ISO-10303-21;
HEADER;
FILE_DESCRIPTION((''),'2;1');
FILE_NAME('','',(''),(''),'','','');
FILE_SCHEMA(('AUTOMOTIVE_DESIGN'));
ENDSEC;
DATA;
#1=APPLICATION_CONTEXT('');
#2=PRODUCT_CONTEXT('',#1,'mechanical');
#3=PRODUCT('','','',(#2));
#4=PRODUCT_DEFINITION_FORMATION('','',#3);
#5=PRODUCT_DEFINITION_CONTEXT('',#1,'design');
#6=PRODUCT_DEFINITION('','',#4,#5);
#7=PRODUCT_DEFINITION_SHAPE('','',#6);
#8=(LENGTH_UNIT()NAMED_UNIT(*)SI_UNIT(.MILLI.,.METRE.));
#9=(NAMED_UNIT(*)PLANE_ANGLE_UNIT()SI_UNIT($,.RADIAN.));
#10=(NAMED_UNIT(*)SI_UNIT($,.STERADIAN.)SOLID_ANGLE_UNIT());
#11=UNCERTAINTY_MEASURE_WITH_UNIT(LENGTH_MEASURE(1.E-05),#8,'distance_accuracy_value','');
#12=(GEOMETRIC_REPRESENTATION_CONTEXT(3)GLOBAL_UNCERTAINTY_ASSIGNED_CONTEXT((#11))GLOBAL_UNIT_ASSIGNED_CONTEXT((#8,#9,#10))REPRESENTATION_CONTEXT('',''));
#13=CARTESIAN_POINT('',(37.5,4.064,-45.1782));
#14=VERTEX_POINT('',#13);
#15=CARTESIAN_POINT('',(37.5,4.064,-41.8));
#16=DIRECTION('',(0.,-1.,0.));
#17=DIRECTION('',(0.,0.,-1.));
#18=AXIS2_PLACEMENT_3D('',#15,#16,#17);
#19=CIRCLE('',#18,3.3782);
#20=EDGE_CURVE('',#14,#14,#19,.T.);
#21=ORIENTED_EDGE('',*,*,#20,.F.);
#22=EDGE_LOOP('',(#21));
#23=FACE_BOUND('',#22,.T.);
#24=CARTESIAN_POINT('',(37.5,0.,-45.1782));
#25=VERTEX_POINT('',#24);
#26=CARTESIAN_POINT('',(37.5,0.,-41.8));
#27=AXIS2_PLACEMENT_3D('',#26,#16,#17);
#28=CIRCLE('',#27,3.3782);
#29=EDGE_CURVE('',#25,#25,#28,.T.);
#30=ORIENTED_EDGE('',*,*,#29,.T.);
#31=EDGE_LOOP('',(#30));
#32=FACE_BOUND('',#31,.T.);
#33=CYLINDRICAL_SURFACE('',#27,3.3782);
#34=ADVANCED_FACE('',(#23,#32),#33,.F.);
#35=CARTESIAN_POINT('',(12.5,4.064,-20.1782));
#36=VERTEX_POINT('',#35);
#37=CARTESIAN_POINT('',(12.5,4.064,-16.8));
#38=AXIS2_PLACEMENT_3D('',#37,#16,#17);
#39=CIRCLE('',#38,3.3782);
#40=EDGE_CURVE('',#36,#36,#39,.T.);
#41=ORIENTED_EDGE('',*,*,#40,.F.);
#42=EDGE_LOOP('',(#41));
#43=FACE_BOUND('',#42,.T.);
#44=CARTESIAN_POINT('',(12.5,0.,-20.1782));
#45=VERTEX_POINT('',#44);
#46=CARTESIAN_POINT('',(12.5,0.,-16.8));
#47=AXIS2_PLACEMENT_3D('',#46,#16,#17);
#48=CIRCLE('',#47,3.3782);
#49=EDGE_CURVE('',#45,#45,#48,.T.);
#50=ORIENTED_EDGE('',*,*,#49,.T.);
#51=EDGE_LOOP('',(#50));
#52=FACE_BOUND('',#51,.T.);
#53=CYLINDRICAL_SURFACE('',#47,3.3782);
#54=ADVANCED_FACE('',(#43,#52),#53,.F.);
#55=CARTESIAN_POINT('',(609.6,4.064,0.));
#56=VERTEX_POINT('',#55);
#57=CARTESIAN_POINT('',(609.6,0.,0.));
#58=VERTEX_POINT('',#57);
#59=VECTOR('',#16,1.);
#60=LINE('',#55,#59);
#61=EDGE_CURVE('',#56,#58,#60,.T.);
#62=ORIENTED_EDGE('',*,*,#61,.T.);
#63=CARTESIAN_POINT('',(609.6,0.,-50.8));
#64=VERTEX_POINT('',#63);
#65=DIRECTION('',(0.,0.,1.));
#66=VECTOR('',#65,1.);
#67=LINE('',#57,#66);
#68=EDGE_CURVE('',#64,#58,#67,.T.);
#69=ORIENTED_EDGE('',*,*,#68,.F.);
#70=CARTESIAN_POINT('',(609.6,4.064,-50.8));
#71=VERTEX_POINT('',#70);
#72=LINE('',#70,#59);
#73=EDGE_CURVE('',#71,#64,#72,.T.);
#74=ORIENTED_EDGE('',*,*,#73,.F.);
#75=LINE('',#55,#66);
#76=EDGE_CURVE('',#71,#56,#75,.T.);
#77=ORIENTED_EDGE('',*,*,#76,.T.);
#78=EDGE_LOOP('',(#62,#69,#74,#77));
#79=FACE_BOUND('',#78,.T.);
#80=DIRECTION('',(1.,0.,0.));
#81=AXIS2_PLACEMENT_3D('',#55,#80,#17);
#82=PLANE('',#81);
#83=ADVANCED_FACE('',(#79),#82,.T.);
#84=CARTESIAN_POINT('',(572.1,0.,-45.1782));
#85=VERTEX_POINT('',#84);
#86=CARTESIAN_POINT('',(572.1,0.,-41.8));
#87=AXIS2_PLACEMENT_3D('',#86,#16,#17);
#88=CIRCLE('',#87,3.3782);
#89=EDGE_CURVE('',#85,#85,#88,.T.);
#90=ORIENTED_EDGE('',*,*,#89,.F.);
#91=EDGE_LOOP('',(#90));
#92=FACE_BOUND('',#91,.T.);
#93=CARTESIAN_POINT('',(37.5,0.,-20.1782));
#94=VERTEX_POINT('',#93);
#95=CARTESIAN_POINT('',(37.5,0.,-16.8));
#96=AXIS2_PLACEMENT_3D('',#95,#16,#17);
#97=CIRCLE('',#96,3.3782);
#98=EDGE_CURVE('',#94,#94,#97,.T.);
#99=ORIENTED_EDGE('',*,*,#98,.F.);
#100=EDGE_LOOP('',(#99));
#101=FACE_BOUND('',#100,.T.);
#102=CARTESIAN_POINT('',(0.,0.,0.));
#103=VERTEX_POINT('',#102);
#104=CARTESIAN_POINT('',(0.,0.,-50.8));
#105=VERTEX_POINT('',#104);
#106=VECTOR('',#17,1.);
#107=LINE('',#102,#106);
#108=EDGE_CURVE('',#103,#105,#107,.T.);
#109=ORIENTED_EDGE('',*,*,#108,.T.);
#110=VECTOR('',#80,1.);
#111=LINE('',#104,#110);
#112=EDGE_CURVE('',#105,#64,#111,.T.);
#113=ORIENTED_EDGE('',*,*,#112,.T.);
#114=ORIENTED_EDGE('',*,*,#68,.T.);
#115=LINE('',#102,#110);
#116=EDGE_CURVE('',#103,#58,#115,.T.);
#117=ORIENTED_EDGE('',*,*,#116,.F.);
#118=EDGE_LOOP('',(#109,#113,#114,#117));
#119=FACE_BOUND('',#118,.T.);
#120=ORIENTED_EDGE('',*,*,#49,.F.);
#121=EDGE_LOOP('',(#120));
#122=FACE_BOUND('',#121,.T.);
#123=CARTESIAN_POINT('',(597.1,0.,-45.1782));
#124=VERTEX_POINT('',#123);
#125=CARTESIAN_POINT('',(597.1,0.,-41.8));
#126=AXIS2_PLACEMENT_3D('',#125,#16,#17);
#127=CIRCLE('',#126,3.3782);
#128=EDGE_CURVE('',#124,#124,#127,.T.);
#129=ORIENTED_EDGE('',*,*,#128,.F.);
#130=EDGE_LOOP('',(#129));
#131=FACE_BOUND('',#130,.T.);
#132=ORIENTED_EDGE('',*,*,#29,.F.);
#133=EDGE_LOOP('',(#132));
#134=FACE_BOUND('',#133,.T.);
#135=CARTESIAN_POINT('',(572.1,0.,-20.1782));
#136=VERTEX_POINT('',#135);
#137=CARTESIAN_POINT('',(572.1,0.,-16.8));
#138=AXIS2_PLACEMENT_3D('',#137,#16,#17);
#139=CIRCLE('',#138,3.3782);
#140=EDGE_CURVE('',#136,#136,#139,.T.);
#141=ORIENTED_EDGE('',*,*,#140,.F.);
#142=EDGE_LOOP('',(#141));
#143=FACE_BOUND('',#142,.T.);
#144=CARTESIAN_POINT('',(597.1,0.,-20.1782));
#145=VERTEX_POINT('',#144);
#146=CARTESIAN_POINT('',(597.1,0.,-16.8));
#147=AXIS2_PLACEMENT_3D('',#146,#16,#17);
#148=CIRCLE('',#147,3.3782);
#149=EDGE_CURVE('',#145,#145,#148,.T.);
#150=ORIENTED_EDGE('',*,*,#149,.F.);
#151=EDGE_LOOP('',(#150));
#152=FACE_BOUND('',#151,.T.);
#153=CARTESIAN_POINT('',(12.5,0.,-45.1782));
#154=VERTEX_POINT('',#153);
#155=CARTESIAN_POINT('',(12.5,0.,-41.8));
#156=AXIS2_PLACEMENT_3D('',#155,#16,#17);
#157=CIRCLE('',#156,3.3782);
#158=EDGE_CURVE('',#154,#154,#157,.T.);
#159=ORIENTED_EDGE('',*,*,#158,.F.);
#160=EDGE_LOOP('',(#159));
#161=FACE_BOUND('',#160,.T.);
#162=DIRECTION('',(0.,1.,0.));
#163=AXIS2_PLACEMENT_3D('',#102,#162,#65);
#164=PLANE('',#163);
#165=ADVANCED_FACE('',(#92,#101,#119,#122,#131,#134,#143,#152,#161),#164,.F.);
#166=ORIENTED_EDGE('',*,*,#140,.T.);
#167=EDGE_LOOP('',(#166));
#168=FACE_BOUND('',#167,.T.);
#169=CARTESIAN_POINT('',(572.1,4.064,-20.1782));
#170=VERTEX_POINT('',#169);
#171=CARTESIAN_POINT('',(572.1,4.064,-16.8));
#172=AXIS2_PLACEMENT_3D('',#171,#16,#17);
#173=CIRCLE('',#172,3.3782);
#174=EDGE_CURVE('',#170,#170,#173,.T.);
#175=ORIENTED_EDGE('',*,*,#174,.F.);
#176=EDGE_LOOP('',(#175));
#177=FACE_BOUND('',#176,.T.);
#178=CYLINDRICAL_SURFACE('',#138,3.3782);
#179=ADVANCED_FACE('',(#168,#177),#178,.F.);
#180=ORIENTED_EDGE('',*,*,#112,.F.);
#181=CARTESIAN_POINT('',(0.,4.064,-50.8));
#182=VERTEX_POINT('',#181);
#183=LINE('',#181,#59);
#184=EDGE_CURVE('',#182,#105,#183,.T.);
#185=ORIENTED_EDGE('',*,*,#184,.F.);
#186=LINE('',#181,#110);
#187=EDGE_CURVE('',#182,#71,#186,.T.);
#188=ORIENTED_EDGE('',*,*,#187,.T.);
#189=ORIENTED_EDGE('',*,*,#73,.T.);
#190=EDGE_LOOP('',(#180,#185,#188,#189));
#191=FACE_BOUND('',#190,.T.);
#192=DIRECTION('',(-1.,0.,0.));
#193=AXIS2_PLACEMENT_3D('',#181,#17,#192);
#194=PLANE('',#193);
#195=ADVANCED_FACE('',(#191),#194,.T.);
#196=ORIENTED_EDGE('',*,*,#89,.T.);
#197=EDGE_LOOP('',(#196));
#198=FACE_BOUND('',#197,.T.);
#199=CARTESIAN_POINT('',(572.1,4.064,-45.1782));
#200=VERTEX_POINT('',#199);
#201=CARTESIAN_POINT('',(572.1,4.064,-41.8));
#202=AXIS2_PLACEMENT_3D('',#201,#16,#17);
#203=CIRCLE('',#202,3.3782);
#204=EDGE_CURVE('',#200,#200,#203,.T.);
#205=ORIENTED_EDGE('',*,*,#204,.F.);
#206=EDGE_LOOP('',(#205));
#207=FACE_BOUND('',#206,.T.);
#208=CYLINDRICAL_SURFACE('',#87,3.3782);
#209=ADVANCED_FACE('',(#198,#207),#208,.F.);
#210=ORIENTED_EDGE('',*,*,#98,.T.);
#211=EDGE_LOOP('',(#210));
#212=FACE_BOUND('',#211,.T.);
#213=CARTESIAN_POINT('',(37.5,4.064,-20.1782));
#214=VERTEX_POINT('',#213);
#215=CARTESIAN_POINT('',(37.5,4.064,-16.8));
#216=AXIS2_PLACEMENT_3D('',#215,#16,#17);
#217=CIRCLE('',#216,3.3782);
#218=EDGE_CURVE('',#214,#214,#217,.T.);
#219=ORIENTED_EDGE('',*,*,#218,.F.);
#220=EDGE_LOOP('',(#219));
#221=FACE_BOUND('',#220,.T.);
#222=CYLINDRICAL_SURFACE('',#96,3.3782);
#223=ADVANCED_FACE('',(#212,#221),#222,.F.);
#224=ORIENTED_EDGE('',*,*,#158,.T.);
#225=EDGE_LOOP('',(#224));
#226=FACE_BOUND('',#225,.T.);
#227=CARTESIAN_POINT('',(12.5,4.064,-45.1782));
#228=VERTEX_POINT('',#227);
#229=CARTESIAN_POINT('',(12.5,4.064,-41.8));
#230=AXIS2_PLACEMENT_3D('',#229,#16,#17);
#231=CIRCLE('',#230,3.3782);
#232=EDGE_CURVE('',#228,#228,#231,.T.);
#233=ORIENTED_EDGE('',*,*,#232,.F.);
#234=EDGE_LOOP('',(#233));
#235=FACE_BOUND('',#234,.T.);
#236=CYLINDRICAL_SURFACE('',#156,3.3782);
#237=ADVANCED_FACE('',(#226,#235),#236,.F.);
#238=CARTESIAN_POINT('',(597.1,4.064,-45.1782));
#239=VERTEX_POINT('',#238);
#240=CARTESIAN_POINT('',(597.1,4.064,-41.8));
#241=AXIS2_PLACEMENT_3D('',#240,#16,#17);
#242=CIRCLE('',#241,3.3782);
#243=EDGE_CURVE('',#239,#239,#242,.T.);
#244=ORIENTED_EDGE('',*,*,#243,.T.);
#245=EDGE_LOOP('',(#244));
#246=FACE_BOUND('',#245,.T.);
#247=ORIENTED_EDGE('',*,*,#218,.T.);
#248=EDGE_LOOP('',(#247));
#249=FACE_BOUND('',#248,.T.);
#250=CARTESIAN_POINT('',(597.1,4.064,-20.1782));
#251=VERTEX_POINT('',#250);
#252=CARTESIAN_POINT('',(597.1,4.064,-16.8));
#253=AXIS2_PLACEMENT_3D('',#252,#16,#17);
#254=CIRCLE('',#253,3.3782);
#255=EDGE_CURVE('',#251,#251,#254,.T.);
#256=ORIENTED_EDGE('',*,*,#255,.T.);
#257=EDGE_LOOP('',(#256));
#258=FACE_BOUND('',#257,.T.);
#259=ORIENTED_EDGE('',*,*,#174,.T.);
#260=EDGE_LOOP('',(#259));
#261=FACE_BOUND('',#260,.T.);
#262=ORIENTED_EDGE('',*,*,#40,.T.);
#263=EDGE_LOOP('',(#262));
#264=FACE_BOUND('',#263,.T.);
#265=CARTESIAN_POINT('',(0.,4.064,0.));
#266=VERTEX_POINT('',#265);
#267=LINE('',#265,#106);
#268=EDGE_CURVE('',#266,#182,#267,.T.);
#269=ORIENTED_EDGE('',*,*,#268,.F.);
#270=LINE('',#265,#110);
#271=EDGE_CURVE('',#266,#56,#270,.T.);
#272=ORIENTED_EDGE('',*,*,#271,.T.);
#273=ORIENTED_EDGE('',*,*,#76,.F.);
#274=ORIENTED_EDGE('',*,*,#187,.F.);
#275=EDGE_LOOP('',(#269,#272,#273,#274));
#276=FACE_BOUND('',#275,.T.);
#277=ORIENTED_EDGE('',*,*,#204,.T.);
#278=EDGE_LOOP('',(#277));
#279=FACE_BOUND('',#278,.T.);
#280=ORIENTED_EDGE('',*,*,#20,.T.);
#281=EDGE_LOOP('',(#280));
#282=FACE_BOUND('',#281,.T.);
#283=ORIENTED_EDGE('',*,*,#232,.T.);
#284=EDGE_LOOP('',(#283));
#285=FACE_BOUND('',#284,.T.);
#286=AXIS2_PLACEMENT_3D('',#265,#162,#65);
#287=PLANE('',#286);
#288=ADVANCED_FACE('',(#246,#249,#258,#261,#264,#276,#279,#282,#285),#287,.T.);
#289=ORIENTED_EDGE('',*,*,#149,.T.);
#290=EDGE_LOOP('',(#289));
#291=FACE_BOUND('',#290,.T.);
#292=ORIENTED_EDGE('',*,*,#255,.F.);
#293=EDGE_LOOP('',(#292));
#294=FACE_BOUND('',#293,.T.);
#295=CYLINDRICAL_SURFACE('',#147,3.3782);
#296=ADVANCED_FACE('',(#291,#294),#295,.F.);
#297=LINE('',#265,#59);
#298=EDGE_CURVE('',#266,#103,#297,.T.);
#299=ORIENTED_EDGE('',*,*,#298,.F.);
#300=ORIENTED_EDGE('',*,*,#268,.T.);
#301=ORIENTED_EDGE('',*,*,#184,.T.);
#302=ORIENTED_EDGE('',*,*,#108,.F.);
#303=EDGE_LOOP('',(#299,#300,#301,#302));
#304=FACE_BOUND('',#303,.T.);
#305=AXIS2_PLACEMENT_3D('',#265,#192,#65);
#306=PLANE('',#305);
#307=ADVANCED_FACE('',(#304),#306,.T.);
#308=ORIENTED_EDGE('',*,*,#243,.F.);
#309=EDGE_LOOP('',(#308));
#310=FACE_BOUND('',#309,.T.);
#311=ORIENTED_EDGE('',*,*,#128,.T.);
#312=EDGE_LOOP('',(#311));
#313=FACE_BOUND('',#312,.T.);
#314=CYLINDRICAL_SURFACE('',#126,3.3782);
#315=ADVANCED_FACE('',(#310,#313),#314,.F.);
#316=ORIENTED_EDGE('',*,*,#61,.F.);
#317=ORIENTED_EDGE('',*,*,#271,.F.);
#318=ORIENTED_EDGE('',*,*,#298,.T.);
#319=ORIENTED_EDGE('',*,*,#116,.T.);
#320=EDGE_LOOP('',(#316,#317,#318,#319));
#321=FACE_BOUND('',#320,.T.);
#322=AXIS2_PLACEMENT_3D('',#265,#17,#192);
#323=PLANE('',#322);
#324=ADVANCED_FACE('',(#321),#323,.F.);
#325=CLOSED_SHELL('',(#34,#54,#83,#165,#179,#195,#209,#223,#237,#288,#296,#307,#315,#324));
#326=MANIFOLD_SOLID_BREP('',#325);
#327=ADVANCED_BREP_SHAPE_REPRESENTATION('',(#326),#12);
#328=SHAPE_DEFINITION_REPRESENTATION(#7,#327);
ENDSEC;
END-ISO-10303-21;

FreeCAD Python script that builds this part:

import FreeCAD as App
import Part
import Sketcher

V = App.Vector
Q = App.Units.Quantity


def add_polygon(sketch, points):
    """Adds a closed chain of lines whose ends are joined by coincident constraints."""
    first, n = sketch.GeometryCount, len(points)
    for a, b in zip(points, points[1:] + points[:1]):
        sketch.addGeometry(Part.LineSegment(App.Vector(*a, 0), App.Vector(*b, 0)), False)
    for i in range(n):
        sketch.addConstraint(Sketcher.Constraint("Coincident", first + i, 2, first + (i + 1) % n, 1))

doc = App.newDocument("Part")
params = doc.addObject("Spreadsheet::Sheet", "Params")
for row, (alias, value) in enumerate([
    ("sketch1_width", "24 in"),
    ("sketch1_height", "2 in"),
    ("pad1_length", "0.16 in"),
    ("sketch2_diameter", "0.266 in"),
    ("hole_diameter", "0.266 in"),
], start=1):
    params.set(f"A{row}", alias)
    params.set(f"B{row}", "=" + value)
    params.setAlias(f"B{row}", alias)

body = doc.addObject("PartDesign::Body", "Body")

sketch1 = body.newObject("Sketcher::SketchObject", "Sketch")
sketch1.AttachmentSupport = (doc.getObject("XZ_Plane"), [""])
sketch1.MapMode = "FlatFace"
add_polygon(sketch1, [(0, -50.8), (0, 0), (609.6, 0), (609.6, -50.8)])
sketch1.addConstraint(Sketcher.Constraint("Vertical", 0))
sketch1.addConstraint(Sketcher.Constraint("Horizontal", 1))
sketch1.addConstraint(Sketcher.Constraint("Vertical", 2))
sketch1.addConstraint(Sketcher.Constraint("Horizontal", 3))
sketch1.addConstraint(Sketcher.Constraint("Coincident", 0, 2, -1, 1))
sketch1.addConstraint(Sketcher.Constraint("DistanceX", 1, 1, 1, 2, Q("24 in")))
sketch1.addConstraint(Sketcher.Constraint("DistanceY", 0, 1, 0, 2, Q("2 in")))
sketch1.setExpression("Constraints[9]", "Params.sketch1_width")
sketch1.setExpression("Constraints[10]", "Params.sketch1_height")
pad1 = body.newObject("PartDesign::Pad", "Pad")
pad1.Profile = sketch1
pad1.setExpression("Length", "Params.pad1_length")
pad1.Reversed = True

sketch2 = body.newObject("Sketcher::SketchObject", "Sketch001")
sketch2.AttachmentSupport = (doc.getObject("XZ_Plane"), [""])
sketch2.MapMode = "FlatFace"
sketch2.addGeometry(Part.Circle(V(12.5, -41.8, 0), V(0, 0, 1), 3.3782), False)
sketch2.addGeometry(Part.Circle(V(37.5, -41.8, 0), V(0, 0, 1), 3.3782), False)
sketch2.addGeometry(Part.Circle(V(37.5, -16.8, 0), V(0, 0, 1), 3.3782), False)
sketch2.addGeometry(Part.Circle(V(12.5, -16.8, 0), V(0, 0, 1), 3.3782), False)
sketch2.addGeometry(Part.Circle(V(572.1, -41.8, 0), V(0, 0, 1), 3.3782), False)
sketch2.addGeometry(Part.Circle(V(597.1, -41.8, 0), V(0, 0, 1), 3.3782), False)
sketch2.addGeometry(Part.Circle(V(597.1, -16.8, 0), V(0, 0, 1), 3.3782), False)
sketch2.addGeometry(Part.Circle(V(572.1, -16.8, 0), V(0, 0, 1), 3.3782), False)
sketch2.addConstraint(Sketcher.Constraint("Equal", 0, 1))
sketch2.addConstraint(Sketcher.Constraint("Equal", 1, 2))
sketch2.addConstraint(Sketcher.Constraint("Equal", 2, 3))
sketch2.addConstraint(Sketcher.Constraint("Equal", 3, 4))
sketch2.addConstraint(Sketcher.Constraint("Equal", 4, 5))
sketch2.addConstraint(Sketcher.Constraint("Equal", 5, 6))
sketch2.addConstraint(Sketcher.Constraint("Equal", 6, 7))
sketch2.addConstraint(Sketcher.Constraint("Horizontal", 0, 3, 1, 3))
sketch2.addConstraint(Sketcher.Constraint("Horizontal", 2, 3, 3, 3))
sketch2.addConstraint(Sketcher.Constraint("Horizontal", 1, 3, 4, 3))
sketch2.addConstraint(Sketcher.Constraint("Horizontal", 4, 3, 5, 3))
sketch2.addConstraint(Sketcher.Constraint("Horizontal", 3, 3, 6, 3))
sketch2.addConstraint(Sketcher.Constraint("Horizontal", 6, 3, 7, 3))
sketch2.addConstraint(Sketcher.Constraint("Vertical", 1, 3, 2, 3))
sketch2.addConstraint(Sketcher.Constraint("Vertical", 0, 3, 3, 3))
sketch2.addConstraint(Sketcher.Constraint("Vertical", 5, 3, 6, 3))
sketch2.addConstraint(Sketcher.Constraint("Vertical", 4, 3, 7, 3))
sketch2.addConstraint(Sketcher.Constraint("Diameter", 0, Q("0.266 in")))
sketch2.addConstraint(Sketcher.Constraint("DistanceX", -1, 1, 0, 3, 12.5))
sketch2.addConstraint(Sketcher.Constraint("DistanceY", 0, 3, -1, 1, 41.8))
sketch2.addConstraint(Sketcher.Constraint("DistanceX", -1, 1, 1, 3, 37.5))
sketch2.addConstraint(Sketcher.Constraint("DistanceY", 2, 3, -1, 1, 16.8))
sketch2.addConstraint(Sketcher.Constraint("DistanceX", -1, 1, 4, 3, 572.1))
sketch2.addConstraint(Sketcher.Constraint("DistanceX", -1, 1, 5, 3, 597.1))
sketch2.setExpression("Constraints[17]", "Params.sketch2_diameter")
doc.recompute()
hole = body.newObject("PartDesign::Hole", "Hole")
hole.Profile = sketch2
hole.ThreadType = "None"
hole.setExpression("Diameter", "Params.hole_diameter")
hole.DepthType = "ThroughAll"

doc.recompute()
